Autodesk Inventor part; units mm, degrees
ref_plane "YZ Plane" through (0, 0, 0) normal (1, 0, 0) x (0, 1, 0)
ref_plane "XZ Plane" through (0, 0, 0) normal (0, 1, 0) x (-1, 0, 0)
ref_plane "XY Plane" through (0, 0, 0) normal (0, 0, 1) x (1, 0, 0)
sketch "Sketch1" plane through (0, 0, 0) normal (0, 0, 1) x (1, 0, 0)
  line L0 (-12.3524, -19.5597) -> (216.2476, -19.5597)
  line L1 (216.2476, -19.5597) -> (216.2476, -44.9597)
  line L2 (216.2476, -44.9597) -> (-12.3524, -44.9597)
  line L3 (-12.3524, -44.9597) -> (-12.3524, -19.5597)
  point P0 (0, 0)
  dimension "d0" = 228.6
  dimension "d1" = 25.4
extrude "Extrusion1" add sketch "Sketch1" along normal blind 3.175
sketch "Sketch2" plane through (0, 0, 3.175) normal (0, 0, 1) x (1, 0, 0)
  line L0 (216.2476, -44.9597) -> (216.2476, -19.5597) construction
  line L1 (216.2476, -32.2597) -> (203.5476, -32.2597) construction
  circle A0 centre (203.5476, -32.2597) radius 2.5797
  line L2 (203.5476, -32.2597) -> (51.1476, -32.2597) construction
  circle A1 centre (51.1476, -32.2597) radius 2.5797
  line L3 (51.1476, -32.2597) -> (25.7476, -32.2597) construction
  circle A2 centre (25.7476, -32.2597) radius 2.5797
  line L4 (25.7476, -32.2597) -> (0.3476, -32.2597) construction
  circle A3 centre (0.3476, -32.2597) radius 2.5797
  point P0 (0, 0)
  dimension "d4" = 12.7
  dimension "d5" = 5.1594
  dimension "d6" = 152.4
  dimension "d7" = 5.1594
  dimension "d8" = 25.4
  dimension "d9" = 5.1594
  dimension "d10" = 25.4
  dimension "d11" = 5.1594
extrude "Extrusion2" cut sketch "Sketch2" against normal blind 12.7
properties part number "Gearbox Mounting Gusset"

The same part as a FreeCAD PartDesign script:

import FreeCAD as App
import Part
import Sketcher

V = App.Vector
Q = App.Units.Quantity

doc = App.newDocument("Part")
params = doc.addObject("Spreadsheet::Sheet", "Params")
for row, (alias, value) in enumerate([
    ("sketch1_width", "9 in"),
    ("sketch1_height", "1 in"),
    ("pad1_length", "0.125 in"),
    ("sketch2_diameter", "0.203126 in"),
    ("pocket1_length", "0.5 in"),
], start=1):
    params.set(f"A{row}", alias)
    params.set(f"B{row}", "=" + value)
    params.setAlias(f"B{row}", alias)

body = doc.addObject("PartDesign::Body", "Body")

sketch1 = doc.addObject("Sketcher::SketchObject", "Sketch")
body.addObject(sketch1)
sketch1.AttachmentSupport = (doc.XY_Plane, [""])
sketch1.MapMode = "FlatFace"
sketch1.addGeometry([
    Part.LineSegment(V(216.2476, -19.5597, 0), V(-12.3524, -19.5597, 0)),
    Part.LineSegment(V(-12.3524, -19.5597, 0), V(-12.3524, -44.9597, 0)),
    Part.LineSegment(V(-12.3524, -44.9597, 0), V(216.2476, -44.9597, 0)),
    Part.LineSegment(V(216.2476, -44.9597, 0), V(216.2476, -19.5597, 0)),
], False)
sketch1.addConstraint([
    Sketcher.Constraint("Coincident", 0, 2, 1, 1),
    Sketcher.Constraint("Coincident", 1, 2, 2, 1),
    Sketcher.Constraint("Coincident", 2, 2, 3, 1),
    Sketcher.Constraint("Coincident", 3, 2, 0, 1),
    Sketcher.Constraint("Horizontal", 0),
    Sketcher.Constraint("Vertical", 1),
    Sketcher.Constraint("Horizontal", 2),
    Sketcher.Constraint("Vertical", 3),
    Sketcher.Constraint("DistanceX", 0, 2, 0, 1, Q("9 in")),
    Sketcher.Constraint("DistanceY", 1, 2, 1, 1, Q("1 in")),
    Sketcher.Constraint("DistanceX", 0, 2, -1, 1, Q("12.3524 mm")),
    Sketcher.Constraint("DistanceY", 0, 2, -1, 1, Q("19.5597 mm")),
])
sketch1.setExpression("Constraints[8]", "Params.sketch1_width")
sketch1.setExpression("Constraints[9]", "Params.sketch1_height")
pad1 = doc.addObject("PartDesign::Pad", "Pad")
body.addObject(pad1)
pad1.Profile = sketch1
pad1.setExpression("Length", "Params.pad1_length")

sketch2 = doc.addObject("Sketcher::SketchObject", "Sketch001")
body.addObject(sketch2)
sketch2.AttachmentSupport = (doc.XY_Plane, [""])
sketch2.MapMode = "FlatFace"
sketch2.AttachmentOffset = App.Placement(V(0, 0, 0.125 * 25.4), App.Rotation())
sketch2.addGeometry([
    Part.Circle(V(203.5476, -32.2597, 0), V(0, 0, 1), 2.5797),
    Part.Circle(V(51.1476, -32.2597, 0), V(0, 0, 1), 2.5797),
    Part.Circle(V(25.7476, -32.2597, 0), V(0, 0, 1), 2.5797),
    Part.Circle(V(0.3476, -32.2597, 0), V(0, 0, 1), 2.5797),
], False)
sketch2.addConstraint([
    Sketcher.Constraint("Equal", 0, 1),
    Sketcher.Constraint("Equal", 1, 2),
    Sketcher.Constraint("Equal", 2, 3),
    Sketcher.Constraint("Horizontal", 0, 3, 1, 3),
    Sketcher.Constraint("Horizontal", 1, 3, 2, 3),
    Sketcher.Constraint("Horizontal", 2, 3, 3, 3),
    Sketcher.Constraint("Diameter", 0, Q("0.203126 in")),
    Sketcher.Constraint("DistanceX", 1, 3, 0, 3, Q("6 in")),
    Sketcher.Constraint("DistanceX", 2, 3, 1, 3, Q("1 in")),
    Sketcher.Constraint("DistanceX", 3, 3, 2, 3, Q("1 in")),
    Sketcher.Constraint("DistanceX", -1, 1, 0, 3, Q("203.5476 mm")),
    Sketcher.Constraint("DistanceY", 0, 3, -1, 1, Q("32.2597 mm")),
])
sketch2.setExpression("Constraints[6]", "Params.sketch2_diameter")
pocket1 = doc.addObject("PartDesign::Pocket", "Pocket")
body.addObject(pocket1)
pocket1.Profile = sketch2
pocket1.setExpression("Length", "Params.pocket1_length")

doc.recompute()
